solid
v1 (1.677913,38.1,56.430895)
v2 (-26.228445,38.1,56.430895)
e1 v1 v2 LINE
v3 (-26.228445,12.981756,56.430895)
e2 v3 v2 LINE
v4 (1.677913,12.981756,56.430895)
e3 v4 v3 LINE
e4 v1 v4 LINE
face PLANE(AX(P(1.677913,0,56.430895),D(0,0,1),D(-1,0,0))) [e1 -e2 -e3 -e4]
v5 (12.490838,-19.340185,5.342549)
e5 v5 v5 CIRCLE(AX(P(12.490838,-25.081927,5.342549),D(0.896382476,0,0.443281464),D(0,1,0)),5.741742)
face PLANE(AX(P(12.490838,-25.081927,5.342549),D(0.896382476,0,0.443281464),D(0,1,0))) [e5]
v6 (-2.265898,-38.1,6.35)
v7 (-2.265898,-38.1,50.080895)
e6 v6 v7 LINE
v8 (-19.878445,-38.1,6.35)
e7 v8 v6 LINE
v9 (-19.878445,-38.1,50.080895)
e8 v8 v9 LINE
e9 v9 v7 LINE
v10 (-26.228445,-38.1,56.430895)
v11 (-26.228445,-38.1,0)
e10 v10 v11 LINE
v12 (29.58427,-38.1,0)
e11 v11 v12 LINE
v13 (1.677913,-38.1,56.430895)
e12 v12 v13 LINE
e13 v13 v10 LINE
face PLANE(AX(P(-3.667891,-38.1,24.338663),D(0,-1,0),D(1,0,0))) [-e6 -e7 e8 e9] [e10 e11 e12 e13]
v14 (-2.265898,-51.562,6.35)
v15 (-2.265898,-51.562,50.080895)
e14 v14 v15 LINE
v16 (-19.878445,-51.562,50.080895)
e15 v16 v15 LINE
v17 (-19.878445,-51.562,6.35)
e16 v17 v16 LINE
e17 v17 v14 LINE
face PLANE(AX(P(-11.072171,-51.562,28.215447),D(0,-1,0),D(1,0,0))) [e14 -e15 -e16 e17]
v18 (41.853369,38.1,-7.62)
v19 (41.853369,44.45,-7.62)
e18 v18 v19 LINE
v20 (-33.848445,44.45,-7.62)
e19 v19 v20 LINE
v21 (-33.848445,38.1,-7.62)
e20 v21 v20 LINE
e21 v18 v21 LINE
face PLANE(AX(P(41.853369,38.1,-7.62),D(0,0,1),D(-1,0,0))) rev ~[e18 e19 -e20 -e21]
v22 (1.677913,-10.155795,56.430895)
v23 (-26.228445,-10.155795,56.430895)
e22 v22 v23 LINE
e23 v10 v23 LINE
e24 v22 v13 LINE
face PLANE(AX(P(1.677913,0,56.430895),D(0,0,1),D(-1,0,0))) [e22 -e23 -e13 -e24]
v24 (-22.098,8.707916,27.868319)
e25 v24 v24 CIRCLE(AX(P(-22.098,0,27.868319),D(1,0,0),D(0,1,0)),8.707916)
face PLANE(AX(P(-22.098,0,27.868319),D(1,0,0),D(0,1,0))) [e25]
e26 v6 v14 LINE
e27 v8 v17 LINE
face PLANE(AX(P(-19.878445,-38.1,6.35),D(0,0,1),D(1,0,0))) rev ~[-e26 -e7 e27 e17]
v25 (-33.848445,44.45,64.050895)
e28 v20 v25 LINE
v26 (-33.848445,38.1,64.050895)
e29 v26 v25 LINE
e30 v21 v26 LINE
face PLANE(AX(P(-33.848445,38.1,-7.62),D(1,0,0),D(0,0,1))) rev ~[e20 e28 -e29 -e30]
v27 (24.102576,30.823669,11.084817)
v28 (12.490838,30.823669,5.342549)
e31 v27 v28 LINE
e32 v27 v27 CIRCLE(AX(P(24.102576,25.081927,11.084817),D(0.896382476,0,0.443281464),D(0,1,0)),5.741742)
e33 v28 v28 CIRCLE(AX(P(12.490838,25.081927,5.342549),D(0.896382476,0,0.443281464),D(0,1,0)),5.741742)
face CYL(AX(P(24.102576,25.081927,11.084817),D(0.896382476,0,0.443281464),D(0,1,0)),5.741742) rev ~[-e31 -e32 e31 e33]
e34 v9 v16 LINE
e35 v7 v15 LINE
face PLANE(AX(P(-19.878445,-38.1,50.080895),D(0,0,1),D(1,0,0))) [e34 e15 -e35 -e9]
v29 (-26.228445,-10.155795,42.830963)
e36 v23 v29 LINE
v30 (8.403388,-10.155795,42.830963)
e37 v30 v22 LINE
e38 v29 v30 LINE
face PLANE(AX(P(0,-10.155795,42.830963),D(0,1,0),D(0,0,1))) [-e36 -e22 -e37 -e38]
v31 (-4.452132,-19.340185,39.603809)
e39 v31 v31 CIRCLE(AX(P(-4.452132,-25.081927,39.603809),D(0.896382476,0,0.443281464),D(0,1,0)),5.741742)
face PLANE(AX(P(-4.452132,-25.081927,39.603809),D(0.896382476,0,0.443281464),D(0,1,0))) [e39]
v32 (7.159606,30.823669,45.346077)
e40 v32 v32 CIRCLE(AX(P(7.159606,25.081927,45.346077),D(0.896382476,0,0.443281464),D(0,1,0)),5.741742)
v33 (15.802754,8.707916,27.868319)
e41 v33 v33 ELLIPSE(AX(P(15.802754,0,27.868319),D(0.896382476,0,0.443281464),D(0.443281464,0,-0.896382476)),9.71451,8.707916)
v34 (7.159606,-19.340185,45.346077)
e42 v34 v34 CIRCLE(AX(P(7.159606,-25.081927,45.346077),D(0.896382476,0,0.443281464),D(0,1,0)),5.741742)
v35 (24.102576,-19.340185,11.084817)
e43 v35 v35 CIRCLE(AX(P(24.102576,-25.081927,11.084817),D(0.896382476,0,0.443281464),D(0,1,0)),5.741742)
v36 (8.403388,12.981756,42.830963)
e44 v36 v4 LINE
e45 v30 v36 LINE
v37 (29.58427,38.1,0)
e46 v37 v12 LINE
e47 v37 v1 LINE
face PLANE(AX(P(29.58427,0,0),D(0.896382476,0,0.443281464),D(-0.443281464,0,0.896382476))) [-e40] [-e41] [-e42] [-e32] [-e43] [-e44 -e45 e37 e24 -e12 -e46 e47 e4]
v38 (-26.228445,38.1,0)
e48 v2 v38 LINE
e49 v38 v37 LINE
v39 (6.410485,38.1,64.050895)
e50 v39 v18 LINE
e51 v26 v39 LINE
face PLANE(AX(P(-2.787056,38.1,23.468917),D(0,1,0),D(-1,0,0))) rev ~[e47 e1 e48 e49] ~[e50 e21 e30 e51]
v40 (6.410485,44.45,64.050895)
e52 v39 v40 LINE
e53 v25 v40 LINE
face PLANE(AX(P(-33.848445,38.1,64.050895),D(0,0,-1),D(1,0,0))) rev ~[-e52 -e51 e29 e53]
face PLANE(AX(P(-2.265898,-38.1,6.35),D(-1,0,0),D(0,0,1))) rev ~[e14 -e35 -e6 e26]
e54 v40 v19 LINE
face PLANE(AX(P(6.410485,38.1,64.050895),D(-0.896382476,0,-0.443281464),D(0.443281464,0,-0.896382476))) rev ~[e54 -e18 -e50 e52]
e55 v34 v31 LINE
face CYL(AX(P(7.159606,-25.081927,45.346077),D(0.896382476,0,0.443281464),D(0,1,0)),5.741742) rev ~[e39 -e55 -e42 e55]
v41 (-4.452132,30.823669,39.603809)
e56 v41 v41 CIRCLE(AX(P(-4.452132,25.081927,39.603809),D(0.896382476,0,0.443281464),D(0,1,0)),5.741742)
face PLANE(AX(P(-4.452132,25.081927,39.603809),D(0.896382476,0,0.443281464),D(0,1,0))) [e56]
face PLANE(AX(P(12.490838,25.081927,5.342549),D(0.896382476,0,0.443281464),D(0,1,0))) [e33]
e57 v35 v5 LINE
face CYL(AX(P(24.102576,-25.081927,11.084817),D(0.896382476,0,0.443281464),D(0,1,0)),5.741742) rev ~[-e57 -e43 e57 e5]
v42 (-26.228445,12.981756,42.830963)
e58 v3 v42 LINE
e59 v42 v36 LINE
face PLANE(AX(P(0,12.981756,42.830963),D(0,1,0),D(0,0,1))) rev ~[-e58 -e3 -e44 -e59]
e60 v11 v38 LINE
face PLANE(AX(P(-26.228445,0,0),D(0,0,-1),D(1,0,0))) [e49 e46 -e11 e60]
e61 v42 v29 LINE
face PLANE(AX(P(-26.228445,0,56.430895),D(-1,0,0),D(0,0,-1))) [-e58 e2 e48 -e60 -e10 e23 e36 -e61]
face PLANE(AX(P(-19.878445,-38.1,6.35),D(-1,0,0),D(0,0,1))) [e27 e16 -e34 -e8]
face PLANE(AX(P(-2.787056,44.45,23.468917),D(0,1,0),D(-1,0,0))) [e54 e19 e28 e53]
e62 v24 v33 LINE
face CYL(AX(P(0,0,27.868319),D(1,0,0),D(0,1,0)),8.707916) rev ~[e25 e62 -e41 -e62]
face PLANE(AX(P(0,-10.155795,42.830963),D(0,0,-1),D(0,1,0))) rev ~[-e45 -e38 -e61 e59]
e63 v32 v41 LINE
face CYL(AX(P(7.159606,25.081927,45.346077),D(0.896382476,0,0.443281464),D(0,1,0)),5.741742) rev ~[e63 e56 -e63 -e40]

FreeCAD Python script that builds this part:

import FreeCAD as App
import Part
import Sketcher

V = App.Vector
Q = App.Units.Quantity

doc = App.newDocument("Part")
body = doc.addObject("PartDesign::Body", "Body")

# Sketch on XZ plane
sketch1 = doc.addObject("Sketcher::SketchObject", "Sketch")
body.addObject(sketch1)
sketch1.AttachmentSupport = (doc.XZ_Plane, [""])
sketch1.MapMode = "FlatFace"
sketch1.addGeometry(Part.LineSegment(V(-26, 0, 0), V(30, 0, 0)), False)
sketch1.addGeometry(Part.LineSegment(V(30, 0, 0), V(2, 56, 0)), False)
sketch1.addGeometry(Part.LineSegment(V(2, 56, 0), V(-26, 56, 0)), False)
sketch1.addGeometry(Part.LineSegment(V(-26, 56, 0), V(-26, 0, 0)), False)
sketch1.addConstraint(Sketcher.Constraint("Coincident", 0, 2, 1, 1))
sketch1.addConstraint(Sketcher.Constraint("Coincident", 1, 2, 2, 1))
sketch1.addConstraint(Sketcher.Constraint("Coincident", 2, 2, 3, 1))
sketch1.addConstraint(Sketcher.Constraint("Coincident", 3, 2, 0, 1))
sketch1.addConstraint(Sketcher.Constraint("Horizontal", 0))
sketch1.addConstraint(Sketcher.Constraint("Horizontal", 2))
sketch1.addConstraint(Sketcher.Constraint("Vertical", 3))
sketch1.addConstraint(Sketcher.Constraint("PointOnObject", 0, 2, -1))
sketch1.addConstraint(Sketcher.Constraint("DistanceX", 0, 1, 0, 2, Q("55.812715 mm")))
sketch1.addConstraint(Sketcher.Constraint("DistanceX", 2, 2, 2, 1, Q("27.906357 mm")))
sketch1.addConstraint(Sketcher.Constraint("DistanceY", 3, 2, 3, 1, Q("56.430895 mm")))
sketch1.addConstraint(Sketcher.Constraint("DistanceX", -1, 1, 0, 2, Q("29.58427 mm")))
pad1 = doc.addObject("PartDesign::Pad", "Pad")
body.addObject(pad1)
pad1.Profile = sketch1
pad1.Length = Q("3 in")
pad1.Midplane = True

# Sketch on YZ plane
sketch2 = doc.addObject("Sketcher::SketchObject", "Sketch001")
body.addObject(sketch2)
sketch2.AttachmentSupport = (doc.YZ_Plane, [""])
sketch2.MapMode = "FlatFace"
sketch2.addGeometry(Part.Circle(V(0, 28, 0), V(0, 0, 1), 9), False)
sketch2.addConstraint(Sketcher.Constraint("PointOnObject", 0, 3, -2))
sketch2.addConstraint(Sketcher.Constraint("Diameter", 0, Q("17.415833 mm")))
sketch2.addConstraint(Sketcher.Constraint("DistanceY", -1, 1, 0, 3, Q("27.868319 mm")))
pocket1 = doc.addObject("PartDesign::Pocket", "Pocket")
body.addObject(pocket1)
pocket1.Profile = sketch2
pocket1.Length = Q("1.74 in")
pocket1.Midplane = True

# Sketch on XZ plane
sketch3 = doc.addObject("Sketcher::SketchObject", "Sketch002")
body.addObject(sketch3)
sketch3.AttachmentSupport = (doc.XZ_Plane, [""])
sketch3.MapMode = "FlatFace"
sketch3.AttachmentOffset = App.Placement(V(0, 0, -1.5 * 25.4), App.Rotation())
sketch3.addGeometry(Part.LineSegment(V(-34, 64, 0), V(6, 64, 0)), False)
sketch3.addGeometry(Part.LineSegment(V(6, 64, 0), V(42, -8, 0)), False)
sketch3.addGeometry(Part.LineSegment(V(42, -8, 0), V(-34, -8, 0)), False)
sketch3.addGeometry(Part.LineSegment(V(-34, -8, 0), V(-34, 64, 0)), False)
sketch3.addConstraint(Sketcher.Constraint("Coincident", 0, 2, 1, 1))
sketch3.addConstraint(Sketcher.Constraint("Coincident", 1, 2, 2, 1))
sketch3.addConstraint(Sketcher.Constraint("Coincident", 2, 2, 3, 1))
sketch3.addConstraint(Sketcher.Constraint("Coincident", 3, 2, 0, 1))
sketch3.addConstraint(Sketcher.Constraint("Horizontal", 0))
sketch3.addConstraint(Sketcher.Constraint("Horizontal", 2))
sketch3.addConstraint(Sketcher.Constraint("Vertical", 3))
sketch3.addConstraint(Sketcher.Constraint("DistanceY", 1, 2, -1, 1, Q("0.3 in")))
sketch3.addConstraint(Sketcher.Constraint("DistanceX", 0, 1, 0, 2, Q("40.25893 mm")))
sketch3.addConstraint(Sketcher.Constraint("DistanceX", 2, 2, 2, 1, Q("75.701813 mm")))
sketch3.addConstraint(Sketcher.Constraint("DistanceY", 3, 1, 3, 2, Q("71.670895 mm")))
sketch3.addConstraint(Sketcher.Constraint("DistanceX", -1, 1, 1, 2, Q("41.853369 mm")))
pad2 = doc.addObject("PartDesign::Pad", "Pad001")
body.addObject(pad2)
pad2.Profile = sketch3
pad2.Length = Q("0.25 in")
pad2.Reversed = True

# Sketch on an angled plane
sketch4 = doc.addObject("Sketcher::SketchObject", "Sketch003")
body.addObject(sketch4)
sketch4.Placement = App.Placement(V(23.771007, 0, 11.755302), App.Rotation(V(0, 1, 0), V(-0.443281464, 0, 0.896382476), V(0.896382476, 0, 0.443281464), "ZXY"))
sketch4.addGeometry(Part.Circle(V(-25, 37, 0), V(0, 0, 1), 6), False)
sketch4.addGeometry(Part.Circle(V(25, 37, 0), V(0, 0, 1), 6), False)
sketch4.addGeometry(Part.Circle(V(-25, -1, 0), V(0, 0, 1), 6), False)
sketch4.addGeometry(Part.Circle(V(25, -1, 0), V(0, 0, 1), 6), False)
sketch4.addConstraint(Sketcher.Constraint("Equal", 0, 1))
sketch4.addConstraint(Sketcher.Constraint("Equal", 1, 2))
sketch4.addConstraint(Sketcher.Constraint("Equal", 2, 3))
sketch4.addConstraint(Sketcher.Constraint("Symmetric", 0, 3, 1, 3, -2))
sketch4.addConstraint(Sketcher.Constraint("Symmetric", 2, 3, 3, 3, -2))
sketch4.addConstraint(Sketcher.Constraint("Vertical", 0, 3, 2, 3))
sketch4.addConstraint(Sketcher.Constraint("Diameter", 0, Q("11.483484 mm")))
sketch4.addConstraint(Sketcher.Constraint("DistanceY", -1, 1, 0, 3, Q("37.473708 mm")))
sketch4.addConstraint(Sketcher.Constraint("DistanceY", 2, 3, -1, 1, Q("0.747989 mm")))
sketch4.addConstraint(Sketcher.Constraint("DistanceX", 0, 3, -1, 1, Q("25.081927 mm")))
pocket2 = doc.addObject("PartDesign::Pocket", "Pocket001")
body.addObject(pocket2)
pocket2.Profile = sketch4
pocket2.Length = Q("0.51 in")

# Sketch on YZ plane
sketch5 = doc.addObject("Sketcher::SketchObject", "Sketch004")
body.addObject(sketch5)
sketch5.AttachmentSupport = (doc.YZ_Plane, [""])
sketch5.MapMode = "FlatFace"
sketch5.addGeometry(Part.LineSegment(V(-10, 56, 0), V(-10, 43, 0)), False)
sketch5.addGeometry(Part.LineSegment(V(-10, 43, 0), V(13, 43, 0)), False)
sketch5.addGeometry(Part.LineSegment(V(13, 43, 0), V(13, 56, 0)), False)
sketch5.addGeometry(Part.LineSegment(V(13, 56, 0), V(-10, 56, 0)), False)
sketch5.addConstraint(Sketcher.Constraint("Coincident", 0, 2, 1, 1))
sketch5.addConstraint(Sketcher.Constraint("Coincident", 1, 2, 2, 1))
sketch5.addConstraint(Sketcher.Constraint("Coincident", 2, 2, 3, 1))
sketch5.addConstraint(Sketcher.Constraint("Coincident", 3, 2, 0, 1))
sketch5.addConstraint(Sketcher.Constraint("Vertical", 0))
sketch5.addConstraint(Sketcher.Constraint("Horizontal", 1))
sketch5.addConstraint(Sketcher.Constraint("Vertical", 2))
sketch5.addConstraint(Sketcher.Constraint("Horizontal", 3))
sketch5.addConstraint(Sketcher.Constraint("DistanceX", 1, 1, 1, 2, Q("23.137551 mm")))
sketch5.addConstraint(Sketcher.Constraint("DistanceY", 0, 2, 0, 1, Q("13.599932 mm")))
sketch5.addConstraint(Sketcher.Constraint("DistanceX", 0, 2, -1, 1, Q("10.155795 mm")))
sketch5.addConstraint(Sketcher.Constraint("DistanceY", -1, 1, 0, 2, Q("42.830963 mm")))
pocket3 = doc.addObject("PartDesign::Pocket", "Pocket002")
body.addObject(pocket3)
pocket3.Profile = sketch5
pocket3.Length = Q("2.24 in")
pocket3.Midplane = True

# Sketch on XZ plane
sketch6 = doc.addObject("Sketcher::SketchObject", "Sketch005")
body.addObject(sketch6)
sketch6.AttachmentSupport = (doc.XZ_Plane, [""])
sketch6.MapMode = "FlatFace"
sketch6.AttachmentOffset = App.Placement(V(0, 0, 1.5 * 25.4), App.Rotation())
sketch6.addGeometry(Part.LineSegment(V(-20, 50, 0), V(-20, 6, 0)), False)
sketch6.addGeometry(Part.LineSegment(V(-20, 6, 0), V(-2, 6, 0)), False)
sketch6.addGeometry(Part.LineSegment(V(-2, 6, 0), V(-2, 50, 0)), False)
sketch6.addGeometry(Part.LineSegment(V(-2, 50, 0), V(-20, 50, 0)), False)
sketch6.addConstraint(Sketcher.Constraint("Coincident", 0, 2, 1, 1))
sketch6.addConstraint(Sketcher.Constraint("Coincident", 1, 2, 2, 1))
sketch6.addConstraint(Sketcher.Constraint("Coincident", 2, 2, 3, 1))
sketch6.addConstraint(Sketcher.Constraint("Coincident", 3, 2, 0, 1))
sketch6.addConstraint(Sketcher.Constraint("Vertical", 0))
sketch6.addConstraint(Sketcher.Constraint("Horizontal", 1))
sketch6.addConstraint(Sketcher.Constraint("Vertical", 2))
sketch6.addConstraint(Sketcher.Constraint("Horizontal", 3))
sketch6.addConstraint(Sketcher.Constraint("DistanceY", -1, 1, 0, 2, Q("0.25 in")))
sketch6.addConstraint(Sketcher.Constraint("DistanceX", 1, 1, 1, 2, Q("17.612547 mm")))
sketch6.addConstraint(Sketcher.Constraint("DistanceY", 0, 2, 0, 1, Q("43.730895 mm")))
sketch6.addConstraint(Sketcher.Constraint("DistanceX", 0, 2, -1, 1, Q("19.878445 mm")))
pad3 = doc.addObject("PartDesign::Pad", "Pad002")
body.addObject(pad3)
pad3.Profile = sketch6
pad3.Length = Q("0.53 in")

doc.recompute()
